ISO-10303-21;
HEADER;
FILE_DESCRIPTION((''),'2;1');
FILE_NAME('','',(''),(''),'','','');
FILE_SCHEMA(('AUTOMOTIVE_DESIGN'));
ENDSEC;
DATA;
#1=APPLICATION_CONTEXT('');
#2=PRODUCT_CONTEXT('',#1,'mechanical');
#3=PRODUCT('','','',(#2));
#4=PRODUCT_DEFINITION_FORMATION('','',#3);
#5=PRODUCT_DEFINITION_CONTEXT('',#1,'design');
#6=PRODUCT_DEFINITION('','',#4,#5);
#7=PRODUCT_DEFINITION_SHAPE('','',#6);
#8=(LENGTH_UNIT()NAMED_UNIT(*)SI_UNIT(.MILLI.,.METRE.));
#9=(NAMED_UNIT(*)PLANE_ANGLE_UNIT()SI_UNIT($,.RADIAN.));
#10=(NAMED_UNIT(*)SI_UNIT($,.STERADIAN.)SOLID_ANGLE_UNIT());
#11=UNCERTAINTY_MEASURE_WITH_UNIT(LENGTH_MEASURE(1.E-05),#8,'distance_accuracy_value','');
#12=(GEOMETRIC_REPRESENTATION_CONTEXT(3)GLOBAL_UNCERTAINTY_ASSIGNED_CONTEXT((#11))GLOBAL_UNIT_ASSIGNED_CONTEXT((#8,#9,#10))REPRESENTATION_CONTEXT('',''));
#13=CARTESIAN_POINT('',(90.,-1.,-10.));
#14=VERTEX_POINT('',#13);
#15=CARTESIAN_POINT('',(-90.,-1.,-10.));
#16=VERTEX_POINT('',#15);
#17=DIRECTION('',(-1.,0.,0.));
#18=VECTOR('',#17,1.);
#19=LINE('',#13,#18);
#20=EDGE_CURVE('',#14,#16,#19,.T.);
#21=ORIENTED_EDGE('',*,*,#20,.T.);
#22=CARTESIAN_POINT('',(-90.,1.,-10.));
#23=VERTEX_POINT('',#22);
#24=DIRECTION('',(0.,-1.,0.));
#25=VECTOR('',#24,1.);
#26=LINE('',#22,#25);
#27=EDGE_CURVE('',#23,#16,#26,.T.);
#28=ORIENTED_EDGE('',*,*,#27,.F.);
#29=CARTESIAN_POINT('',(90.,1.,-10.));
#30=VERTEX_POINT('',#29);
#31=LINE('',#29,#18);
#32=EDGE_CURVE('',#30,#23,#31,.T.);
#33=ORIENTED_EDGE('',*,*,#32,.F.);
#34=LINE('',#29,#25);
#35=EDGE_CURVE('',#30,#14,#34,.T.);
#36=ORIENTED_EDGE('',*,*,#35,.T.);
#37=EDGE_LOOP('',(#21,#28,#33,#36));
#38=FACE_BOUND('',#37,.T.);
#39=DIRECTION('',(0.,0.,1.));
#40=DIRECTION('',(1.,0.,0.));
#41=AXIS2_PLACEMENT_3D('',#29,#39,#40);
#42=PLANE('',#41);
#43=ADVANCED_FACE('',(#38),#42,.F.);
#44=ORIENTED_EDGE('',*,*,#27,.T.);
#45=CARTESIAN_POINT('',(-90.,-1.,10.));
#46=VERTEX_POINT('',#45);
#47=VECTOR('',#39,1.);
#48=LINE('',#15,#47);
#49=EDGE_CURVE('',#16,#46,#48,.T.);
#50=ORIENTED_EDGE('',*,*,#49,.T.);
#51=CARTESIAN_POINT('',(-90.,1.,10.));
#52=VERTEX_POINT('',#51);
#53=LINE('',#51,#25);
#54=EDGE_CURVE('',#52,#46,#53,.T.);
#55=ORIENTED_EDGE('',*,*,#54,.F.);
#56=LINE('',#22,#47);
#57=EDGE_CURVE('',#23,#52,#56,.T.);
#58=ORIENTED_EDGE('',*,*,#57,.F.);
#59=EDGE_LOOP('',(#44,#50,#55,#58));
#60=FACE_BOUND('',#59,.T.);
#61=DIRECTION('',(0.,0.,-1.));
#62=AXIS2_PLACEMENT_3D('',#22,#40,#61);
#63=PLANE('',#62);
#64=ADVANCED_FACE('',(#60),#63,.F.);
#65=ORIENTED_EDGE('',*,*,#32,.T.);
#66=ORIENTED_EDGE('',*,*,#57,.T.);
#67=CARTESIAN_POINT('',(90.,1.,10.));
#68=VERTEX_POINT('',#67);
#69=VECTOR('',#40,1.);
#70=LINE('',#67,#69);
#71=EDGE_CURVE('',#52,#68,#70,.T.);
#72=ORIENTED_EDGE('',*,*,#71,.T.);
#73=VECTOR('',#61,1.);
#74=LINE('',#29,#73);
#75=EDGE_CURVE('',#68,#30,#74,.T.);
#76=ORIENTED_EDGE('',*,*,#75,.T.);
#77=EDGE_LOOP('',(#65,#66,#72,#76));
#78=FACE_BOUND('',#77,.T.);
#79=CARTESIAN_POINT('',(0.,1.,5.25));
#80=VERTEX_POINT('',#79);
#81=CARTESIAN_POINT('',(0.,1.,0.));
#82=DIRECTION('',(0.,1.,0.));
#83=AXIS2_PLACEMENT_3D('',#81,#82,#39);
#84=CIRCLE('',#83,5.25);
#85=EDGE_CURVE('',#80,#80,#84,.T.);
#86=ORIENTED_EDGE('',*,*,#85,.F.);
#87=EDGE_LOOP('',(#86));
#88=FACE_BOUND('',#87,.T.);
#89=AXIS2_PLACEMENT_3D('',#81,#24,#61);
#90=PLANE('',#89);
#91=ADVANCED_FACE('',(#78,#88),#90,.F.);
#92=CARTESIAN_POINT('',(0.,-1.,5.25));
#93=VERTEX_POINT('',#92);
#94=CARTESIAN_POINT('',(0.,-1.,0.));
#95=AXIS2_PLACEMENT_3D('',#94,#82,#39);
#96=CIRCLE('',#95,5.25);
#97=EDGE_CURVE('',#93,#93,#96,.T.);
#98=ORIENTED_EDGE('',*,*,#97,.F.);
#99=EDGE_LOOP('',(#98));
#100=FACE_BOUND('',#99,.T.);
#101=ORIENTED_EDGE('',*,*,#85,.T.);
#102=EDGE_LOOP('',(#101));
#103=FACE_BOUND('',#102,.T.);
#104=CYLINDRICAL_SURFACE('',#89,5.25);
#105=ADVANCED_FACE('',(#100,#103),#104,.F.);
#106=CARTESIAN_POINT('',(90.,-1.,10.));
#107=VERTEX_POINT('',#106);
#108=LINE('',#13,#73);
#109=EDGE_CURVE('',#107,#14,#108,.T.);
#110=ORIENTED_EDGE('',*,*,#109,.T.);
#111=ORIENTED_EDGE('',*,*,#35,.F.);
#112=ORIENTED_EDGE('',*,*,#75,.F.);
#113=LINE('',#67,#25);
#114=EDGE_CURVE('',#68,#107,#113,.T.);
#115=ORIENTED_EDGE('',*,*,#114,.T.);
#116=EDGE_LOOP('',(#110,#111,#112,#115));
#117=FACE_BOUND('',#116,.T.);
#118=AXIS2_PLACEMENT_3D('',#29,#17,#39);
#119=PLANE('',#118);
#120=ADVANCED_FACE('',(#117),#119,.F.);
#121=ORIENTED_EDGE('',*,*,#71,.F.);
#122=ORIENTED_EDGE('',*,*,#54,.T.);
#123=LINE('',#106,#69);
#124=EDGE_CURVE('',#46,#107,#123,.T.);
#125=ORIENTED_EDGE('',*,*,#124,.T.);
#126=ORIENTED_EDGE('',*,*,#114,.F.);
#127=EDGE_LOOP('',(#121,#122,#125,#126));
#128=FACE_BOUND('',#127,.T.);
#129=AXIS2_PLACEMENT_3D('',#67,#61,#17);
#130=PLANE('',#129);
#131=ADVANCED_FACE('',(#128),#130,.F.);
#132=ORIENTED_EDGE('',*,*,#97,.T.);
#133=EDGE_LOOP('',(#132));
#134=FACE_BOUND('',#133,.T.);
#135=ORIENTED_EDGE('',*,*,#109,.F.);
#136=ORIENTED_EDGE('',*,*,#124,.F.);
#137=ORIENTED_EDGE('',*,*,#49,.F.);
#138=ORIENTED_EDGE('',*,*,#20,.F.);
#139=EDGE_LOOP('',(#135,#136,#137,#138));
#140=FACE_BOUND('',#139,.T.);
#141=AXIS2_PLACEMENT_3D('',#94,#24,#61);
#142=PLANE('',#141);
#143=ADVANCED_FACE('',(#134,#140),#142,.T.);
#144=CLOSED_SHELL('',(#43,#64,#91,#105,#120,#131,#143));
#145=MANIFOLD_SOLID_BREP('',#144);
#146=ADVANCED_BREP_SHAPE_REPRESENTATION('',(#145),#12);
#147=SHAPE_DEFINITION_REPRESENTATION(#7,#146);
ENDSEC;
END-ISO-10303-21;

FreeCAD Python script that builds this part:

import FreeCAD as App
import Part
import Sketcher
from FreeCAD import Vector
Q = App.Units.Quantity

doc = App.newDocument("Part")
body = doc.addObject("PartDesign::Body", "Body")

sketch1 = body.newObject("Sketcher::SketchObject", "Sketch")
sketch1.AttachmentSupport = (doc.getObject("XZ_Plane"), [""])
sketch1.MapMode = "FlatFace"
sketch1.addGeometry([
    Part.LineSegment(Vector(-90, -10, 0), Vector(-90, 10, 0)),
    Part.LineSegment(Vector(-90, 10, 0), Vector(90, 10, 0)),
    Part.LineSegment(Vector(90, 10, 0), Vector(90, -10, 0)),
    Part.LineSegment(Vector(90, -10, 0), Vector(-90, -10, 0)),
    Part.Circle(Vector(0, 0, 0), Vector(0, 0, 1), 5.25),
], False)
sketch1.addConstraint([
    Sketcher.Constraint("Coincident", 0, 2, 1, 1),
    Sketcher.Constraint("Coincident", 1, 2, 2, 1),
    Sketcher.Constraint("Coincident", 2, 2, 3, 1),
    Sketcher.Constraint("Coincident", 3, 2, 0, 1),
    Sketcher.Constraint("Vertical", 0),
    Sketcher.Constraint("Horizontal", 1),
    Sketcher.Constraint("Vertical", 2),
    Sketcher.Constraint("Horizontal", 3),
    Sketcher.Constraint("Coincident", 4, 3, -1, 1),
    Sketcher.Constraint("Symmetric", 0, 2, 2, 2, -1, 1),
    Sketcher.Constraint("Diameter", 4, Q("10.5 mm")),
    Sketcher.Constraint("DistanceX", 1, 1, 1, 2, Q("180 mm")),
    Sketcher.Constraint("DistanceY", 0, 1, 0, 2, Q("20 mm")),
])
pad1 = body.newObject("PartDesign::Pad", "Pad")
pad1.Profile = sketch1
pad1.Length = 2
pad1.Midplane = True

doc.recompute()
